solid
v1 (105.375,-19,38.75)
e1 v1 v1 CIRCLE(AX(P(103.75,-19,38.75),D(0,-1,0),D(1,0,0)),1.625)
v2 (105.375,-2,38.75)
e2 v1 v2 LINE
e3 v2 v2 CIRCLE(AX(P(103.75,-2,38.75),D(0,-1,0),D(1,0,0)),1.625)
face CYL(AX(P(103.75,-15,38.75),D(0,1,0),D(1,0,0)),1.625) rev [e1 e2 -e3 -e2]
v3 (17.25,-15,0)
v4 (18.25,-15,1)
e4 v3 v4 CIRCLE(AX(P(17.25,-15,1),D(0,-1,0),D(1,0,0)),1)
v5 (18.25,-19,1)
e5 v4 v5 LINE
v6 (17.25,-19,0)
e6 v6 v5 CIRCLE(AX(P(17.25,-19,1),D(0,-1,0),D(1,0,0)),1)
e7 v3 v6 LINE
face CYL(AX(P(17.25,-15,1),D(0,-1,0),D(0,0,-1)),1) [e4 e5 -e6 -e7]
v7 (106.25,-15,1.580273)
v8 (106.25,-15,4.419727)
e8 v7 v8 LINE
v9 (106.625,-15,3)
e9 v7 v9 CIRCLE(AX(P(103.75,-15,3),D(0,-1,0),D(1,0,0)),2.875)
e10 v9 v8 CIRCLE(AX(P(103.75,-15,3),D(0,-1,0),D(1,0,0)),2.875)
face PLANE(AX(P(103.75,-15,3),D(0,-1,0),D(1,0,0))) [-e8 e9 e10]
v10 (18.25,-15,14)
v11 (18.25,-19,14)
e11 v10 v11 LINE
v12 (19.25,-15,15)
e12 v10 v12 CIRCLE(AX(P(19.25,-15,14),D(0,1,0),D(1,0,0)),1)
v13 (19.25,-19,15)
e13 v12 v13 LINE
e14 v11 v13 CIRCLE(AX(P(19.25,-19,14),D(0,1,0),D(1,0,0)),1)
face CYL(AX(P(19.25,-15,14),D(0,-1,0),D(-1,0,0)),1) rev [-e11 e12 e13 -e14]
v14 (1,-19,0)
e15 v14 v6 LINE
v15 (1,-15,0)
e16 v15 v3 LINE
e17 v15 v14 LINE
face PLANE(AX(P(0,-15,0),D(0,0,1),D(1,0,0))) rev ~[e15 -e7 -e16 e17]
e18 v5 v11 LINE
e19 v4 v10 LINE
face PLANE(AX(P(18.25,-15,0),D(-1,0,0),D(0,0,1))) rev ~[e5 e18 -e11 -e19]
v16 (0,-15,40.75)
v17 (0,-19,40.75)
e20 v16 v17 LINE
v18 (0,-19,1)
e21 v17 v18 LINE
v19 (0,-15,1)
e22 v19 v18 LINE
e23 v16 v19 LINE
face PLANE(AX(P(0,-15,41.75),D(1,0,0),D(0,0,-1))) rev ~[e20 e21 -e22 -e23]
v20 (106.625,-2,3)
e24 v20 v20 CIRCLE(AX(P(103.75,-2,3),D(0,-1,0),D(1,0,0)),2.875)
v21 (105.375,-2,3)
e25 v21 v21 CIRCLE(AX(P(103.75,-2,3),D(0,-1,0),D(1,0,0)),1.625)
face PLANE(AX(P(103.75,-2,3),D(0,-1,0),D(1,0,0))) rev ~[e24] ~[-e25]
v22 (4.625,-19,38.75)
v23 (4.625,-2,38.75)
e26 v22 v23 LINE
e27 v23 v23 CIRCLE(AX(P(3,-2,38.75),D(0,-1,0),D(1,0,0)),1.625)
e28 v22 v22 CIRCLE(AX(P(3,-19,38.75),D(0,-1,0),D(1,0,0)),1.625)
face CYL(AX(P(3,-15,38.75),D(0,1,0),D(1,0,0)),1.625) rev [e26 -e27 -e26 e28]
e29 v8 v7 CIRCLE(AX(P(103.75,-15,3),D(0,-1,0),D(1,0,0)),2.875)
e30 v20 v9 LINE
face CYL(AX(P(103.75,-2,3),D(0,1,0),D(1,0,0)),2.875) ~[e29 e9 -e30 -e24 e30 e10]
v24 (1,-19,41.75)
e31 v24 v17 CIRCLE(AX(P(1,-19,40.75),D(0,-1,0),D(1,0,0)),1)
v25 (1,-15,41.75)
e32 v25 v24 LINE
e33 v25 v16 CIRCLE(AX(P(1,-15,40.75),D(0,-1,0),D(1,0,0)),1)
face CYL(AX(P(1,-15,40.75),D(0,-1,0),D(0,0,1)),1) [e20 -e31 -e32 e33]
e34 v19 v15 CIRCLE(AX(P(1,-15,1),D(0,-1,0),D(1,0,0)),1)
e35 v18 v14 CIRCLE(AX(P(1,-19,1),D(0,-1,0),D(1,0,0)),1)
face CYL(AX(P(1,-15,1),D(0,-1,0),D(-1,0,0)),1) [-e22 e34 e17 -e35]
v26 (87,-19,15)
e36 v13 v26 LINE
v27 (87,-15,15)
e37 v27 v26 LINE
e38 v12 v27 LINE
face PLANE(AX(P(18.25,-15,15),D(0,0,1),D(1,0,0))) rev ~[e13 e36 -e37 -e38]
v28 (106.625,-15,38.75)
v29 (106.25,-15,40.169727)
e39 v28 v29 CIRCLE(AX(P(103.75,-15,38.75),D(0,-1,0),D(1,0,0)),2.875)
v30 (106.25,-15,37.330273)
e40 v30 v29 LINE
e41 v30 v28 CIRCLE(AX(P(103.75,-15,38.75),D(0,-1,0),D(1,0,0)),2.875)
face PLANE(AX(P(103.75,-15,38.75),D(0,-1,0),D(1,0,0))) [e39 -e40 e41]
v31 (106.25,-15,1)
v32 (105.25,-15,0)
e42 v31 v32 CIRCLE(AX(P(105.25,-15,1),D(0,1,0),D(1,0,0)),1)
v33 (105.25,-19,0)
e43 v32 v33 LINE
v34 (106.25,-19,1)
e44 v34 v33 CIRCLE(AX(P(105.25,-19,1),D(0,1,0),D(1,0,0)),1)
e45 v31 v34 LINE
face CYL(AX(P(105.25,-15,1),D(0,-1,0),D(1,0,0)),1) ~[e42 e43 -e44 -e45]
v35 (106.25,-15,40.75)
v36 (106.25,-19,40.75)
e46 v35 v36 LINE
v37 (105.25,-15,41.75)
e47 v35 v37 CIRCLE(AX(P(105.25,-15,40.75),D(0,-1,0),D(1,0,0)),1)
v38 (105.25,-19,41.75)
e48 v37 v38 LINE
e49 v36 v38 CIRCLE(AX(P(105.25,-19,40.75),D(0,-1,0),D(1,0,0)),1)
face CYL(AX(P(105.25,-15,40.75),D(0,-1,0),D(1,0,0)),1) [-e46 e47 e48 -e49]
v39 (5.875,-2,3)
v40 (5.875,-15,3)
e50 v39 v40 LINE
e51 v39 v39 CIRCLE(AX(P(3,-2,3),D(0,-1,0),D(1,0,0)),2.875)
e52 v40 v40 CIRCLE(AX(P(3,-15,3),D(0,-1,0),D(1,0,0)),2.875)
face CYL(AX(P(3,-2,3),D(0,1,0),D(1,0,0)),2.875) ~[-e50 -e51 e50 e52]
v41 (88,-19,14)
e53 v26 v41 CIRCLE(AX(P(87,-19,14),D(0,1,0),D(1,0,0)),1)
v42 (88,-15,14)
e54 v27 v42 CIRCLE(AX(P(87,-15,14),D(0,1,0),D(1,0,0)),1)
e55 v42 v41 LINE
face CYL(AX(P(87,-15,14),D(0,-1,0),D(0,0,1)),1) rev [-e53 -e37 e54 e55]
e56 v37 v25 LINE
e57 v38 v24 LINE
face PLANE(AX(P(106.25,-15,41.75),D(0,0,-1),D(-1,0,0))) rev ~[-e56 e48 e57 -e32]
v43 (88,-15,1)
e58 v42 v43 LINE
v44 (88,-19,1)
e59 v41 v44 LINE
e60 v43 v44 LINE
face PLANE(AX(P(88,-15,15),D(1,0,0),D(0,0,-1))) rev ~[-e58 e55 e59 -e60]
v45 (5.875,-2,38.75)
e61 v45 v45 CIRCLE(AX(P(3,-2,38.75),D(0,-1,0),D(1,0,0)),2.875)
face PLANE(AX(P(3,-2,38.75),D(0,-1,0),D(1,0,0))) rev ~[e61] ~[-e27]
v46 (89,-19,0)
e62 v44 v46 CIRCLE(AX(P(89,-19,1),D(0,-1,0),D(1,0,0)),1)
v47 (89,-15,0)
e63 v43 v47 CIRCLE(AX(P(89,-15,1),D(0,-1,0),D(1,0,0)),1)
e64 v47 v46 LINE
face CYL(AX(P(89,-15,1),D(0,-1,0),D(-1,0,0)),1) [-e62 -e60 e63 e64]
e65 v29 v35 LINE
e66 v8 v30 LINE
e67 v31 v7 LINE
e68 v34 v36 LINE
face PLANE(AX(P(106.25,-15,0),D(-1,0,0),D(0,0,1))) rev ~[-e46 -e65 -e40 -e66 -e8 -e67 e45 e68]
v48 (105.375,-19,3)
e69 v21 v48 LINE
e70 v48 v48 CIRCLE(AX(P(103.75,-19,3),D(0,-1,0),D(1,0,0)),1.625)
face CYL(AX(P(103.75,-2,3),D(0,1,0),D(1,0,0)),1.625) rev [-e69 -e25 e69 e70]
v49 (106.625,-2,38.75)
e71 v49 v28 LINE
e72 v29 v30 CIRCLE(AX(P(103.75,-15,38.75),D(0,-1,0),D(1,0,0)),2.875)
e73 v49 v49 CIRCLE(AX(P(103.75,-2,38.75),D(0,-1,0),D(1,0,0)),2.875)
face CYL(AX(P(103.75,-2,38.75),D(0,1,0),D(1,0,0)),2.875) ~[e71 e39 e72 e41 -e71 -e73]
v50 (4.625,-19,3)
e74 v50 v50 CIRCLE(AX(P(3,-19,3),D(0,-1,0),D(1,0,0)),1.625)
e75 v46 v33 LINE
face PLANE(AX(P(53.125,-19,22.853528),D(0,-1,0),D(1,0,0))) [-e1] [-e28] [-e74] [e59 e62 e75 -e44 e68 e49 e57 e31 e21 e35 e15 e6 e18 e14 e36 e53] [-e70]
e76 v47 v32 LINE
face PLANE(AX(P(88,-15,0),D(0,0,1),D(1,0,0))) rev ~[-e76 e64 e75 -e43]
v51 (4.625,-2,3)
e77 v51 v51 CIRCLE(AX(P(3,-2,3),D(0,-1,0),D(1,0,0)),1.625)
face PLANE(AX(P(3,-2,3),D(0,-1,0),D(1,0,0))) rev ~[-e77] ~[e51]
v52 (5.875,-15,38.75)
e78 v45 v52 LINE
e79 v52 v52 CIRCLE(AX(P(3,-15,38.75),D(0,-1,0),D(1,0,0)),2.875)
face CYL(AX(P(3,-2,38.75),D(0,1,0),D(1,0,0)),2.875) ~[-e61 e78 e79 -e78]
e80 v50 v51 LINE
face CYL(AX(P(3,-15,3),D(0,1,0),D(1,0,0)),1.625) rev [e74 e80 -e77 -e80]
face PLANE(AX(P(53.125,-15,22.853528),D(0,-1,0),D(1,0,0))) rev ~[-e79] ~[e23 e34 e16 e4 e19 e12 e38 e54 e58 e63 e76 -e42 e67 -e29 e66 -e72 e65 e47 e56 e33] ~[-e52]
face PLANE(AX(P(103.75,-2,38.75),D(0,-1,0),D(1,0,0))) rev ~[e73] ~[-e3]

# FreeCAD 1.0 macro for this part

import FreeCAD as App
import Part
import Sketcher
from FreeCAD import Vector


def edges_at(feature, points):
    """Names of the edges that pass closest to the given points."""
    edges = feature.Shape.Edges
    near = lambda p: min(range(len(edges)), key=lambda i: edges[i].distToShape(Part.Vertex(*p))[0])
    return sorted({f"Edge{near(p) + 1}" for p in points})


def add_polygon(sketch, points):
    """Adds a closed chain of lines whose ends are joined by coincident constraints."""
    first, n = sketch.GeometryCount, len(points)
    for a, b in zip(points, points[1:] + points[:1]):
        sketch.addGeometry(Part.LineSegment(App.Vector(*a, 0), App.Vector(*b, 0)), False)
    for i in range(n):
        sketch.addConstraint(Sketcher.Constraint("Coincident", first + i, 2, first + (i + 1) % n, 1))

doc = App.newDocument("Part")
body = doc.addObject("PartDesign::Body", "Body")
body.AllowCompound = True

# Sketch on YZ plane
sketch1 = body.newObject("Sketcher::SketchObject", "Sketch")
sketch1.AttachmentSupport = (doc.getObject("YZ_Plane"), [""])
sketch1.MapMode = "FlatFace"
sketch1.addGeometry(Part.Circle(Vector(3, 38.75, 0), Vector(0, 0, 1), 2.875), False)
sketch1.addGeometry(Part.Circle(Vector(3, 38.75, 0), Vector(0, 0, 1), 1.625), False)
sketch1.addGeometry(Part.Circle(Vector(3, 3, 0), Vector(0, 0, 1), 2.875), False)
sketch1.addGeometry(Part.Circle(Vector(3, 3, 0), Vector(0, 0, 1), 1.625), False)
sketch1.addGeometry(Part.Circle(Vector(103.75, 3, 0), Vector(0, 0, 1), 2.875), False)
sketch1.addGeometry(Part.Circle(Vector(103.75, 3, 0), Vector(0, 0, 1), 1.625), False)
sketch1.addGeometry(Part.Circle(Vector(103.75, 38.75, 0), Vector(0, 0, 1), 2.875), False)
sketch1.addGeometry(Part.Circle(Vector(103.75, 38.75, 0), Vector(0, 0, 1), 1.625), False)
sketch1.addConstraint(Sketcher.Constraint("Coincident", 1, 3, 0, 3))
sketch1.addConstraint(Sketcher.Constraint("Coincident", 3, 3, 2, 3))
sketch1.addConstraint(Sketcher.Constraint("Coincident", 5, 3, 4, 3))
sketch1.addConstraint(Sketcher.Constraint("Coincident", 7, 3, 6, 3))
sketch1.addConstraint(Sketcher.Constraint("Equal", 0, 2))
sketch1.addConstraint(Sketcher.Constraint("Equal", 1, 3))
sketch1.addConstraint(Sketcher.Constraint("Equal", 2, 4))
sketch1.addConstraint(Sketcher.Constraint("Equal", 3, 5))
sketch1.addConstraint(Sketcher.Constraint("Equal", 4, 6))
sketch1.addConstraint(Sketcher.Constraint("Equal", 5, 7))
sketch1.addConstraint(Sketcher.Constraint("Horizontal", 3, 3, 4, 3))
sketch1.addConstraint(Sketcher.Constraint("Horizontal", 1, 3, 6, 3))
sketch1.addConstraint(Sketcher.Constraint("Vertical", 1, 3, 2, 3))
sketch1.addConstraint(Sketcher.Constraint("Vertical", 5, 3, 6, 3))
sketch1.addConstraint(Sketcher.Constraint("Diameter", 0, 5.75))
sketch1.addConstraint(Sketcher.Constraint("Diameter", 1, 3.25))
sketch1.addConstraint(Sketcher.Constraint("DistanceX", -1, 1, 0, 3, 3.0))
sketch1.addConstraint(Sketcher.Constraint("DistanceY", -1, 1, 2, 3, 3.0))
sketch1.addConstraint(Sketcher.Constraint("DistanceY", -1, 1, 0, 3, 38.75))
sketch1.addConstraint(Sketcher.Constraint("DistanceX", -1, 1, 4, 3, 103.75))
pad1 = body.newObject("PartDesign::Pad", "Pad")
pad1.Profile = sketch1
pad1.Length = 13
body2 = doc.addObject("PartDesign::Body", "Body001")
body2.AllowCompound = True
doc.recompute()

body.Placement = App.Placement(Vector(0, -2, 0), App.Rotation(Vector(0, 0, 1), 270))
boolean = body2.newObject("PartDesign::Boolean", "Boolean")
boolean.Type = "Fuse"
boolean.addObjects([body])
body3 = doc.addObject("PartDesign::Body", "Body002")

# Sketch on YZ plane
sketch2 = body3.newObject("Sketcher::SketchObject", "Sketch001")
sketch2.AttachmentSupport = (doc.getObject("YZ_Plane002"), [""])
sketch2.MapMode = "FlatFace"
add_polygon(sketch2, [(106.25, 0), (106.25, 41.75), (0, 41.75), (0, 0), (18.25, 0), (18.25, 15), (88, 15), (88, 0)])  # lines 0-7
sketch2.addGeometry(Part.Circle(Vector(3, 3, 0), Vector(0, 0, 1), 1.625), False)  # 8
sketch2.addGeometry(Part.Circle(Vector(103.75, 3, 0), Vector(0, 0, 1), 1.625), False)  # 9
sketch2.addGeometry(Part.Circle(Vector(3, 38.75, 0), Vector(0, 0, 1), 1.625), False)  # 10
sketch2.addGeometry(Part.Circle(Vector(103.75, 38.75, 0), Vector(0, 0, 1), 1.625), False)  # 11
sketch2.addConstraint(Sketcher.Constraint("Vertical", 0))
sketch2.addConstraint(Sketcher.Constraint("Horizontal", 1))
sketch2.addConstraint(Sketcher.Constraint("Vertical", 2))
sketch2.addConstraint(Sketcher.Constraint("Horizontal", 3))
sketch2.addConstraint(Sketcher.Constraint("Vertical", 4))
sketch2.addConstraint(Sketcher.Constraint("Horizontal", 5))
sketch2.addConstraint(Sketcher.Constraint("Vertical", 6))
sketch2.addConstraint(Sketcher.Constraint("Horizontal", 7))
sketch2.addConstraint(Sketcher.Constraint("Coincident", 2, 2, -1, 1))
sketch2.addConstraint(Sketcher.Constraint("Equal", 8, 9))
sketch2.addConstraint(Sketcher.Constraint("Equal", 9, 10))
sketch2.addConstraint(Sketcher.Constraint("Equal", 10, 11))
sketch2.addConstraint(Sketcher.Constraint("PointOnObject", 6, 2, -1))
sketch2.addConstraint(Sketcher.Constraint("Horizontal", 8, 3, 9, 3))
sketch2.addConstraint(Sketcher.Constraint("Horizontal", 10, 3, 11, 3))
sketch2.addConstraint(Sketcher.Constraint("Vertical", 8, 3, 10, 3))
sketch2.addConstraint(Sketcher.Constraint("Vertical", 9, 3, 11, 3))
sketch2.addConstraint(Sketcher.Constraint("Equal", 3, 7))
sketch2.addConstraint(Sketcher.Constraint("Diameter", 8, 3.25))
sketch2.addConstraint(Sketcher.Constraint("DistanceY", 4, 1, 4, 2, 15.0))
sketch2.addConstraint(Sketcher.Constraint("DistanceX", -1, 1, 8, 3, 3.0))
sketch2.addConstraint(Sketcher.Constraint("DistanceY", -1, 1, 8, 3, 3.0))
sketch2.addConstraint(Sketcher.Constraint("DistanceX", -1, 1, 5, 2, 88.0))
sketch2.addConstraint(Sketcher.Constraint("DistanceY", 11, 3, 0, 2, 3.0))
sketch2.addConstraint(Sketcher.Constraint("DistanceX", 1, 2, 1, 1, 106.25))
sketch2.addConstraint(Sketcher.Constraint("DistanceY", 0, 1, 0, 2, 41.75))
sketch2.addConstraint(Sketcher.Constraint("DistanceX", 11, 3, 0, 2, 2.5))
pad2 = body3.newObject("PartDesign::Pad", "Pad001")
pad2.Profile = sketch2
pad2.Length = 4
body4 = doc.addObject("PartDesign::Body", "Body003")
doc.recompute()

body3.Placement = App.Placement(Vector(0, -15, 0), App.Rotation(Vector(0, 0, 1), 270))
boolean2 = body4.newObject("PartDesign::Boolean", "Boolean001")
boolean2.Type = "Fuse"
boolean2.addObjects([body3])
doc.recompute()

boolean3 = body4.newObject("PartDesign::Boolean", "Boolean002")
boolean3.Type = "Fuse"
boolean3.addObjects([body2])
doc.recompute()

fillet = body4.newObject("PartDesign::Fillet", "Fillet")
fillet.Base = (boolean3, edges_at(boolean3, [
    (106.25, -17, 0),
    (106.25, -17, 41.75),
    (88, -17, 0),
    (0, -17, 41.75),
    (88, -17, 15),
    (0, -17, 0),
    (18.25, -17, 15),
    (18.25, -17, 0),
]))
fillet.Radius = 1

doc.recompute()
